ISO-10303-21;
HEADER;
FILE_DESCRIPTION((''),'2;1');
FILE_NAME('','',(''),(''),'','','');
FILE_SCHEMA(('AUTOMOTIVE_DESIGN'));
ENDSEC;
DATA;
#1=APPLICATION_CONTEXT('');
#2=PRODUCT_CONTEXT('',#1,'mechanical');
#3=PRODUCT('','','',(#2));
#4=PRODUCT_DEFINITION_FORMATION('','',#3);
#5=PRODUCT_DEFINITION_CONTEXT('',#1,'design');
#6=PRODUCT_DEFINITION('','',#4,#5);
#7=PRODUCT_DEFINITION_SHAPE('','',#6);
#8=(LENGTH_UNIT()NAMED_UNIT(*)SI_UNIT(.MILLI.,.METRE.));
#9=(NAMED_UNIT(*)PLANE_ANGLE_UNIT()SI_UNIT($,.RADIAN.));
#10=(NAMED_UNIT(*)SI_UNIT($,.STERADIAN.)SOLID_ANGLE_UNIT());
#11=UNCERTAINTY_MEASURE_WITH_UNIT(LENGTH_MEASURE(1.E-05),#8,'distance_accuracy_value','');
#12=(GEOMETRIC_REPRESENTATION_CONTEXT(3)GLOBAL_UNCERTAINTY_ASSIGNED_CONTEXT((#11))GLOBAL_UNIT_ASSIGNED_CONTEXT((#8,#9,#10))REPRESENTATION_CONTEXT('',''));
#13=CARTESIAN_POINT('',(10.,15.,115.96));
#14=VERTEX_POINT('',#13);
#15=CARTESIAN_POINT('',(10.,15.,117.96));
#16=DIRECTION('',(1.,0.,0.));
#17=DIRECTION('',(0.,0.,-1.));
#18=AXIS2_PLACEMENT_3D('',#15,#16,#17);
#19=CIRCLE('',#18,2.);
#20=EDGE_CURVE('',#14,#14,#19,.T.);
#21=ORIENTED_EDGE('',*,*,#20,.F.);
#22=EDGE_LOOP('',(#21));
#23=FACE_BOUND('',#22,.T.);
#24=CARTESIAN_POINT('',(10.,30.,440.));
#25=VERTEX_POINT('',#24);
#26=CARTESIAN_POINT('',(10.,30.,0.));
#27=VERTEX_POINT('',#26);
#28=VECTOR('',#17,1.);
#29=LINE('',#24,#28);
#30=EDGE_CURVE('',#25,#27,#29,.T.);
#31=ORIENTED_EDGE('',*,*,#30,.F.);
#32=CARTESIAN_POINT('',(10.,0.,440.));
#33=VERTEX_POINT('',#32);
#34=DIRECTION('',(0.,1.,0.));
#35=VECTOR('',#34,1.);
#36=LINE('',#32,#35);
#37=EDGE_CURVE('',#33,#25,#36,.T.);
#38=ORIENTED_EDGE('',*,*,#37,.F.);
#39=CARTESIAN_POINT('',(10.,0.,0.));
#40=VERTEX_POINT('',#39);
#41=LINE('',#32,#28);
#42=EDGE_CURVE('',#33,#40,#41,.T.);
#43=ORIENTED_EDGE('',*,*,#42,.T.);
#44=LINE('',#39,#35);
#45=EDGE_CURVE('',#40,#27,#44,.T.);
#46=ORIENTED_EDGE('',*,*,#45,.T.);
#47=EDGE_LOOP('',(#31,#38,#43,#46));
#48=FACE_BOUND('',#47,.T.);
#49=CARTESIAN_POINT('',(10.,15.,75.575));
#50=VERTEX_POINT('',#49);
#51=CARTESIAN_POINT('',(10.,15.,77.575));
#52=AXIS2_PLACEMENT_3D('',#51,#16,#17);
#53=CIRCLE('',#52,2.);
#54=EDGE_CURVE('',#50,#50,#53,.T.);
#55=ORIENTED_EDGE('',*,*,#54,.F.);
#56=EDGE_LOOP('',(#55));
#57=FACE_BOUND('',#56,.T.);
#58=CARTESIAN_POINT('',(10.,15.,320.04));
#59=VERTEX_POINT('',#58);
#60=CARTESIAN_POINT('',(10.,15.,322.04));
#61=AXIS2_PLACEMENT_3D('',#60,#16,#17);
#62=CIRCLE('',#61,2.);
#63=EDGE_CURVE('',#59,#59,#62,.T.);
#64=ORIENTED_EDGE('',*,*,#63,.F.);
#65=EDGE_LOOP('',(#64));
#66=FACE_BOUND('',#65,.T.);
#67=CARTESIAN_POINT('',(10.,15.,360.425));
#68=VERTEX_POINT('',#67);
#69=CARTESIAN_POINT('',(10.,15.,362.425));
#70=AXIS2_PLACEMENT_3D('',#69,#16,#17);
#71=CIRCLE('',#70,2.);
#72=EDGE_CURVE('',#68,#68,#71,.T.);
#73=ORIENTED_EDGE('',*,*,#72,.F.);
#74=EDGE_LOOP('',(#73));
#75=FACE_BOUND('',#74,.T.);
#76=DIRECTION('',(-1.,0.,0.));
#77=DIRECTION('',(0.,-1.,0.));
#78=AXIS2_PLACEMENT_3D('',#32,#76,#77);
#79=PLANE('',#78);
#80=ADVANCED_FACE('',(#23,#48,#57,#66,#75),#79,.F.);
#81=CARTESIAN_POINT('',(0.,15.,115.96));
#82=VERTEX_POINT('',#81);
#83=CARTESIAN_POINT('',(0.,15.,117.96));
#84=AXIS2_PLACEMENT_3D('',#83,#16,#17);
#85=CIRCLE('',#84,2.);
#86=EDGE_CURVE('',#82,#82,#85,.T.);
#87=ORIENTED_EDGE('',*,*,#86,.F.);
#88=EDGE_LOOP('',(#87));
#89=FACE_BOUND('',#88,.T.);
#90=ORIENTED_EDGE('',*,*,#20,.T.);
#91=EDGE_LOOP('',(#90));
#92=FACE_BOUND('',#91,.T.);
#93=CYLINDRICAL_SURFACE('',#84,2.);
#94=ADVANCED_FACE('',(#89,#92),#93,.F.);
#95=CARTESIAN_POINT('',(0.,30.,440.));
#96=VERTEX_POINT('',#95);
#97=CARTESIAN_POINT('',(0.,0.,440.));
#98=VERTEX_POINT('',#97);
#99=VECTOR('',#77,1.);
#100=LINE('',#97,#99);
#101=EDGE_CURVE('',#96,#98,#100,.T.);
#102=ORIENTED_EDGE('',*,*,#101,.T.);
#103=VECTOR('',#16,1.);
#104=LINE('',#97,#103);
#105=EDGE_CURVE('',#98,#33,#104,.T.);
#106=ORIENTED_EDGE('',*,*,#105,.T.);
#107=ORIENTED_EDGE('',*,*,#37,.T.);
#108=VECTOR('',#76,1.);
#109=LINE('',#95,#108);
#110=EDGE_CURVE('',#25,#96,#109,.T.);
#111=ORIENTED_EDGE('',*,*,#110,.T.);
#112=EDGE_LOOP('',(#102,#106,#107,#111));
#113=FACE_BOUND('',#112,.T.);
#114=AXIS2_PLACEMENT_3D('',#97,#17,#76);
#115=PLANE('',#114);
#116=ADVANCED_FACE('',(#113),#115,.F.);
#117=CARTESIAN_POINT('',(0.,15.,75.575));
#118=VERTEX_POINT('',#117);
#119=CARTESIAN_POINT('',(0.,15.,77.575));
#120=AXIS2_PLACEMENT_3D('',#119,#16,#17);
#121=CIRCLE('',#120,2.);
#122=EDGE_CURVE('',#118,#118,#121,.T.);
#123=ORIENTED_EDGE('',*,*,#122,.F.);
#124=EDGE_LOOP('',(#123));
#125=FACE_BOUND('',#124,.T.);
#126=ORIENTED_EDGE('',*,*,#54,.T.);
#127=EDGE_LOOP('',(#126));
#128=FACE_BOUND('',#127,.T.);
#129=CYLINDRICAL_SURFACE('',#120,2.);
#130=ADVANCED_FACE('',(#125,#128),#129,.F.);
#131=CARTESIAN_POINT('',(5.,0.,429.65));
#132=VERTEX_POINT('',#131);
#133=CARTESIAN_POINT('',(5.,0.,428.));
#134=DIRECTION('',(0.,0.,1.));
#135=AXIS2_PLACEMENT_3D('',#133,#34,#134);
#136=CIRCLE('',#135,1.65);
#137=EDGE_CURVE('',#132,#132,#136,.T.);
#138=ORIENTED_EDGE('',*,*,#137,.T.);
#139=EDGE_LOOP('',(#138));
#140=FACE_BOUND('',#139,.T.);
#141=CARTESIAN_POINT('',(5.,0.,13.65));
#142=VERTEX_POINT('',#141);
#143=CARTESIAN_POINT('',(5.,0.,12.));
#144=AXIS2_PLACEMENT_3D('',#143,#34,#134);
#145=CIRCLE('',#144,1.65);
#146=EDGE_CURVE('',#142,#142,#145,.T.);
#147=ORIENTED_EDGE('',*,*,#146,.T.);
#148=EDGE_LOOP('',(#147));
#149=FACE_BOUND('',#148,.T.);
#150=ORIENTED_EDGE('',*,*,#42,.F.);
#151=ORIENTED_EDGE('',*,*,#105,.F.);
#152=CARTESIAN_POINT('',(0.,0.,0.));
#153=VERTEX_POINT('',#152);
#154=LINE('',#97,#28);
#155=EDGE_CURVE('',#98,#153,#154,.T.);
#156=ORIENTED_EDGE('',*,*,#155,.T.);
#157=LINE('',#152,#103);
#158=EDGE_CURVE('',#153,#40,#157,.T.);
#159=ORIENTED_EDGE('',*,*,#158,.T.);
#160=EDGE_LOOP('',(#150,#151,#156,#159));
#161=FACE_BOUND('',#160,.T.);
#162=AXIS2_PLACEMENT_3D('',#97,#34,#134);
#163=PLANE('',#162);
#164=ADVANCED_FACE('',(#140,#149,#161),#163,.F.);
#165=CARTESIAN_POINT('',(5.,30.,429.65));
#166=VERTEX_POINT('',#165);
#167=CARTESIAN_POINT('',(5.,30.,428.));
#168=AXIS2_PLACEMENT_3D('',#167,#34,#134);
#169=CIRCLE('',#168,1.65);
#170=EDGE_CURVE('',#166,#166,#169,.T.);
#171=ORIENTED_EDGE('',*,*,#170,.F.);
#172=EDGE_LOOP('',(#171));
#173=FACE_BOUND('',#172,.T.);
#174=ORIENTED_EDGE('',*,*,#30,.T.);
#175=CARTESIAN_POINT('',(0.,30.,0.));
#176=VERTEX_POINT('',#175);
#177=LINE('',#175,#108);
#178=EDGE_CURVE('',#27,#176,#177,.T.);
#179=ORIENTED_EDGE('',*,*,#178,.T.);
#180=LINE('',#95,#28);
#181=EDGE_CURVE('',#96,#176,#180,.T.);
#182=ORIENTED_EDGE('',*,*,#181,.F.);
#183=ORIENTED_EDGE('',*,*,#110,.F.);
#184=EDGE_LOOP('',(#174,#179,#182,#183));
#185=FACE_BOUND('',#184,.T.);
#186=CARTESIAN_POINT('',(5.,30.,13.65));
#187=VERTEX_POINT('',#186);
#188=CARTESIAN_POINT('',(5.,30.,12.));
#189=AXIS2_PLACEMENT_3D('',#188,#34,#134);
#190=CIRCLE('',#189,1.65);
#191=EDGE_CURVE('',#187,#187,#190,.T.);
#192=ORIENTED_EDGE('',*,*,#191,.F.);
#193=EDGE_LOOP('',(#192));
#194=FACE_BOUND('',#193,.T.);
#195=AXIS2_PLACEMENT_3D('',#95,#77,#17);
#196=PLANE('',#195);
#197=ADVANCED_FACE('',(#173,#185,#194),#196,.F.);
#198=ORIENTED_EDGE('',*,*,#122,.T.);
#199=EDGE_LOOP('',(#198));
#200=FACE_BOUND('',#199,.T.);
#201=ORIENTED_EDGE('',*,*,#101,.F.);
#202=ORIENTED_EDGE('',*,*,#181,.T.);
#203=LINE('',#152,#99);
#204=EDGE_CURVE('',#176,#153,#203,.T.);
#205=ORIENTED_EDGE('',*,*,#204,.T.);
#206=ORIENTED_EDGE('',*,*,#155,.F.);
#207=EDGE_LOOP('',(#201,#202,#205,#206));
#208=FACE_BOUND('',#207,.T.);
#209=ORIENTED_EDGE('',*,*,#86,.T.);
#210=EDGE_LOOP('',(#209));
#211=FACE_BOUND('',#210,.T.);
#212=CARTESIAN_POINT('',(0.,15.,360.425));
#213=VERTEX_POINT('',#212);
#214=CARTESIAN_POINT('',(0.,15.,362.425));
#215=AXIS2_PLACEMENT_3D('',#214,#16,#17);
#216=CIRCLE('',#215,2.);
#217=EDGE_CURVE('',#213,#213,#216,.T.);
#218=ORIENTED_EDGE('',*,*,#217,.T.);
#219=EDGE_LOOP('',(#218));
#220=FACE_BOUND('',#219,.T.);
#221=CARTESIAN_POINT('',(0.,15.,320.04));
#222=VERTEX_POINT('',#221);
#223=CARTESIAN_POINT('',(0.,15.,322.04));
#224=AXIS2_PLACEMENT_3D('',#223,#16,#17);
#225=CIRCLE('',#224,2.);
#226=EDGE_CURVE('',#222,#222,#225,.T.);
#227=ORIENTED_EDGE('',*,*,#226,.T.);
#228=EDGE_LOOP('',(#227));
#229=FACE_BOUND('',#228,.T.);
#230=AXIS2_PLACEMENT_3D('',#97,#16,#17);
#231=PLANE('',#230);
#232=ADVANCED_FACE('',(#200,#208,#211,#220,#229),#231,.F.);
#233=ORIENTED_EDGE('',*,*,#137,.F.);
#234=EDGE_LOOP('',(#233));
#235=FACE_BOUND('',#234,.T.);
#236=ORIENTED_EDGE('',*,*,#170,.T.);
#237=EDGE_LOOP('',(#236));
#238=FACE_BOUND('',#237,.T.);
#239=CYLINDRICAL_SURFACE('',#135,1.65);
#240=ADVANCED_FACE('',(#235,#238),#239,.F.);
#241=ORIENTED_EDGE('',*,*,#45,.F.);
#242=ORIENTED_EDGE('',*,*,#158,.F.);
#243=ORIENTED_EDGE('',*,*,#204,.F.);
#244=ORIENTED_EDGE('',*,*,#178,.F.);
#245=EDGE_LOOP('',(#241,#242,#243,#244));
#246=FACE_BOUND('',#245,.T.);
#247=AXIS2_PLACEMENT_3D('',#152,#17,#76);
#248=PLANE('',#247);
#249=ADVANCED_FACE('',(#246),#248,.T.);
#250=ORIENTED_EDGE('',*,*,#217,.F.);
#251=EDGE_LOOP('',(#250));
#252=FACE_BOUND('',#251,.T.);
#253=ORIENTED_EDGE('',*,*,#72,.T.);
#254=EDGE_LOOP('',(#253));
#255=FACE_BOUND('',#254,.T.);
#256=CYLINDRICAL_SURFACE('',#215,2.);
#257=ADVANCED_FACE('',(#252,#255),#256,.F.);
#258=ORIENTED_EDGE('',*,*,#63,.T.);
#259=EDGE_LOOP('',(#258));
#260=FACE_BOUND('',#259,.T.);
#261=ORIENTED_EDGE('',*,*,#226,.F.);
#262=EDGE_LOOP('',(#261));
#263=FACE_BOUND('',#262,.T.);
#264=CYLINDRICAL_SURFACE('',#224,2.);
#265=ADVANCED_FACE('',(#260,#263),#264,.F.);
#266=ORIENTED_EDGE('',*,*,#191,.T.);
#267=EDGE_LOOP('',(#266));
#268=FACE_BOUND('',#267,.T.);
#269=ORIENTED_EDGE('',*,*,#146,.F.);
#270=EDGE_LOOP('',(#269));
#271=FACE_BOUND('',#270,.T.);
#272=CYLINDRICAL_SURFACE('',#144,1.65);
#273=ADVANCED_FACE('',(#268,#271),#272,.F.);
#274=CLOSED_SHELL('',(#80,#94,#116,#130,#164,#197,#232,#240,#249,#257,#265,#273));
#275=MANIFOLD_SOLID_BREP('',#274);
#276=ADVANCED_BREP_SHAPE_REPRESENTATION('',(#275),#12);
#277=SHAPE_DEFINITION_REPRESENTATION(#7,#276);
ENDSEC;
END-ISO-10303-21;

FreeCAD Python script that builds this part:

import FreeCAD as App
import Part
import Sketcher
from FreeCAD import Vector
Q = App.Units.Quantity


def add_polygon(sketch, points):
    """Adds a closed chain of lines whose ends are joined by coincident constraints."""
    first, n = sketch.GeometryCount, len(points)
    for a, b in zip(points, points[1:] + points[:1]):
        sketch.addGeometry(Part.LineSegment(App.Vector(*a, 0), App.Vector(*b, 0)), False)
    for i in range(n):
        sketch.addConstraint(Sketcher.Constraint("Coincident", first + i, 2, first + (i + 1) % n, 1))

doc = App.newDocument("Part")
body = doc.addObject("PartDesign::Body", "Body")

sketch1 = body.newObject("Sketcher::SketchObject", "Sketch")
sketch1.AttachmentSupport = (doc.getObject("XY_Plane"), [""])
sketch1.MapMode = "FlatFace"
add_polygon(sketch1, [(0, 30), (0, 0), (10, 0), (10, 30)])
sketch1.addConstraint(Sketcher.Constraint("Vertical", 0))
sketch1.addConstraint(Sketcher.Constraint("Horizontal", 1))
sketch1.addConstraint(Sketcher.Constraint("Vertical", 2))
sketch1.addConstraint(Sketcher.Constraint("Horizontal", 3))
sketch1.addConstraint(Sketcher.Constraint("Coincident", 0, 2, -1, 1))
sketch1.addConstraint(Sketcher.Constraint("DistanceX", 1, 1, 1, 2, Q("10 mm")))
sketch1.addConstraint(Sketcher.Constraint("DistanceY", 0, 2, 0, 1, Q("30 mm")))
pad1 = body.newObject("PartDesign::Pad", "Pad")
pad1.Profile = sketch1
pad1.Length = 440

sketch2 = body.newObject("Sketcher::SketchObject", "Sketch001")
sketch2.AttachmentSupport = (doc.getObject("XZ_Plane"), [""])
sketch2.MapMode = "FlatFace"
sketch2.AttachmentOffset = App.Placement(Vector(0, 0, -30), App.Rotation())
sketch2.addGeometry(Part.Circle(Vector(5, 428, 0), Vector(0, 0, 1), 1.6), False)
sketch2.addGeometry(Part.Circle(Vector(5, 12, 0), Vector(0, 0, 1), 1.6), False)
sketch2.addConstraint(Sketcher.Constraint("Equal", 0, 1))
sketch2.addConstraint(Sketcher.Constraint("Vertical", 0, 3, 1, 3))
sketch2.addConstraint(Sketcher.Constraint("Diameter", 0, Q("3.3 mm")))
sketch2.addConstraint(Sketcher.Constraint("DistanceX", -1, 1, 0, 3, Q("5 mm")))
sketch2.addConstraint(Sketcher.Constraint("DistanceY", -1, 1, 0, 3, Q("428 mm")))
sketch2.addConstraint(Sketcher.Constraint("DistanceY", -1, 1, 1, 3, Q("12 mm")))
pocket1 = body.newObject("PartDesign::Pocket", "Pocket")
pocket1.Profile = sketch2
pocket1.Type = "ThroughAll"
pocket1.Reversed = True

sketch3 = body.newObject("Sketcher::SketchObject", "Sketch002")
sketch3.AttachmentSupport = (doc.getObject("YZ_Plane"), [""])
sketch3.MapMode = "FlatFace"
sketch3.AttachmentOffset = App.Placement(Vector(0, 0, 10), App.Rotation())
sketch3.addGeometry(Part.Circle(Vector(15, 362.4, 0), Vector(0, 0, 1), 2), False)
sketch3.addGeometry(Part.Circle(Vector(15, 77.6, 0), Vector(0, 0, 1), 2), False)
sketch3.addGeometry(Part.Circle(Vector(15, 322, 0), Vector(0, 0, 1), 2), False)
sketch3.addGeometry(Part.Circle(Vector(15, 118, 0), Vector(0, 0, 1), 2), False)
sketch3.addConstraint(Sketcher.Constraint("Equal", 0, 1))
sketch3.addConstraint(Sketcher.Constraint("Equal", 1, 2))
sketch3.addConstraint(Sketcher.Constraint("Equal", 2, 3))
sketch3.addConstraint(Sketcher.Constraint("Vertical", 0, 3, 1, 3))
sketch3.addConstraint(Sketcher.Constraint("Vertical", 1, 3, 2, 3))
sketch3.addConstraint(Sketcher.Constraint("Vertical", 2, 3, 3, 3))
sketch3.addConstraint(Sketcher.Constraint("Diameter", 0, Q("4 mm")))
sketch3.addConstraint(Sketcher.Constraint("DistanceX", -1, 1, 0, 3, Q("15 mm")))
sketch3.addConstraint(Sketcher.Constraint("DistanceY", -1, 1, 2, 3, Q("322.04 mm")))
sketch3.addConstraint(Sketcher.Constraint("DistanceY", -1, 1, 3, 3, Q("117.96 mm")))
sketch3.addConstraint(Sketcher.Constraint("DistanceY", 1, 3, 0, 3, Q("284.85 mm")))
sketch3.addConstraint(Sketcher.Constraint("DistanceY", -1, 1, 0, 3, Q("362.425 mm")))
pocket2 = body.newObject("PartDesign::Pocket", "Pocket001")
pocket2.Profile = sketch3
pocket2.Type = "ThroughAll"

doc.recompute()
